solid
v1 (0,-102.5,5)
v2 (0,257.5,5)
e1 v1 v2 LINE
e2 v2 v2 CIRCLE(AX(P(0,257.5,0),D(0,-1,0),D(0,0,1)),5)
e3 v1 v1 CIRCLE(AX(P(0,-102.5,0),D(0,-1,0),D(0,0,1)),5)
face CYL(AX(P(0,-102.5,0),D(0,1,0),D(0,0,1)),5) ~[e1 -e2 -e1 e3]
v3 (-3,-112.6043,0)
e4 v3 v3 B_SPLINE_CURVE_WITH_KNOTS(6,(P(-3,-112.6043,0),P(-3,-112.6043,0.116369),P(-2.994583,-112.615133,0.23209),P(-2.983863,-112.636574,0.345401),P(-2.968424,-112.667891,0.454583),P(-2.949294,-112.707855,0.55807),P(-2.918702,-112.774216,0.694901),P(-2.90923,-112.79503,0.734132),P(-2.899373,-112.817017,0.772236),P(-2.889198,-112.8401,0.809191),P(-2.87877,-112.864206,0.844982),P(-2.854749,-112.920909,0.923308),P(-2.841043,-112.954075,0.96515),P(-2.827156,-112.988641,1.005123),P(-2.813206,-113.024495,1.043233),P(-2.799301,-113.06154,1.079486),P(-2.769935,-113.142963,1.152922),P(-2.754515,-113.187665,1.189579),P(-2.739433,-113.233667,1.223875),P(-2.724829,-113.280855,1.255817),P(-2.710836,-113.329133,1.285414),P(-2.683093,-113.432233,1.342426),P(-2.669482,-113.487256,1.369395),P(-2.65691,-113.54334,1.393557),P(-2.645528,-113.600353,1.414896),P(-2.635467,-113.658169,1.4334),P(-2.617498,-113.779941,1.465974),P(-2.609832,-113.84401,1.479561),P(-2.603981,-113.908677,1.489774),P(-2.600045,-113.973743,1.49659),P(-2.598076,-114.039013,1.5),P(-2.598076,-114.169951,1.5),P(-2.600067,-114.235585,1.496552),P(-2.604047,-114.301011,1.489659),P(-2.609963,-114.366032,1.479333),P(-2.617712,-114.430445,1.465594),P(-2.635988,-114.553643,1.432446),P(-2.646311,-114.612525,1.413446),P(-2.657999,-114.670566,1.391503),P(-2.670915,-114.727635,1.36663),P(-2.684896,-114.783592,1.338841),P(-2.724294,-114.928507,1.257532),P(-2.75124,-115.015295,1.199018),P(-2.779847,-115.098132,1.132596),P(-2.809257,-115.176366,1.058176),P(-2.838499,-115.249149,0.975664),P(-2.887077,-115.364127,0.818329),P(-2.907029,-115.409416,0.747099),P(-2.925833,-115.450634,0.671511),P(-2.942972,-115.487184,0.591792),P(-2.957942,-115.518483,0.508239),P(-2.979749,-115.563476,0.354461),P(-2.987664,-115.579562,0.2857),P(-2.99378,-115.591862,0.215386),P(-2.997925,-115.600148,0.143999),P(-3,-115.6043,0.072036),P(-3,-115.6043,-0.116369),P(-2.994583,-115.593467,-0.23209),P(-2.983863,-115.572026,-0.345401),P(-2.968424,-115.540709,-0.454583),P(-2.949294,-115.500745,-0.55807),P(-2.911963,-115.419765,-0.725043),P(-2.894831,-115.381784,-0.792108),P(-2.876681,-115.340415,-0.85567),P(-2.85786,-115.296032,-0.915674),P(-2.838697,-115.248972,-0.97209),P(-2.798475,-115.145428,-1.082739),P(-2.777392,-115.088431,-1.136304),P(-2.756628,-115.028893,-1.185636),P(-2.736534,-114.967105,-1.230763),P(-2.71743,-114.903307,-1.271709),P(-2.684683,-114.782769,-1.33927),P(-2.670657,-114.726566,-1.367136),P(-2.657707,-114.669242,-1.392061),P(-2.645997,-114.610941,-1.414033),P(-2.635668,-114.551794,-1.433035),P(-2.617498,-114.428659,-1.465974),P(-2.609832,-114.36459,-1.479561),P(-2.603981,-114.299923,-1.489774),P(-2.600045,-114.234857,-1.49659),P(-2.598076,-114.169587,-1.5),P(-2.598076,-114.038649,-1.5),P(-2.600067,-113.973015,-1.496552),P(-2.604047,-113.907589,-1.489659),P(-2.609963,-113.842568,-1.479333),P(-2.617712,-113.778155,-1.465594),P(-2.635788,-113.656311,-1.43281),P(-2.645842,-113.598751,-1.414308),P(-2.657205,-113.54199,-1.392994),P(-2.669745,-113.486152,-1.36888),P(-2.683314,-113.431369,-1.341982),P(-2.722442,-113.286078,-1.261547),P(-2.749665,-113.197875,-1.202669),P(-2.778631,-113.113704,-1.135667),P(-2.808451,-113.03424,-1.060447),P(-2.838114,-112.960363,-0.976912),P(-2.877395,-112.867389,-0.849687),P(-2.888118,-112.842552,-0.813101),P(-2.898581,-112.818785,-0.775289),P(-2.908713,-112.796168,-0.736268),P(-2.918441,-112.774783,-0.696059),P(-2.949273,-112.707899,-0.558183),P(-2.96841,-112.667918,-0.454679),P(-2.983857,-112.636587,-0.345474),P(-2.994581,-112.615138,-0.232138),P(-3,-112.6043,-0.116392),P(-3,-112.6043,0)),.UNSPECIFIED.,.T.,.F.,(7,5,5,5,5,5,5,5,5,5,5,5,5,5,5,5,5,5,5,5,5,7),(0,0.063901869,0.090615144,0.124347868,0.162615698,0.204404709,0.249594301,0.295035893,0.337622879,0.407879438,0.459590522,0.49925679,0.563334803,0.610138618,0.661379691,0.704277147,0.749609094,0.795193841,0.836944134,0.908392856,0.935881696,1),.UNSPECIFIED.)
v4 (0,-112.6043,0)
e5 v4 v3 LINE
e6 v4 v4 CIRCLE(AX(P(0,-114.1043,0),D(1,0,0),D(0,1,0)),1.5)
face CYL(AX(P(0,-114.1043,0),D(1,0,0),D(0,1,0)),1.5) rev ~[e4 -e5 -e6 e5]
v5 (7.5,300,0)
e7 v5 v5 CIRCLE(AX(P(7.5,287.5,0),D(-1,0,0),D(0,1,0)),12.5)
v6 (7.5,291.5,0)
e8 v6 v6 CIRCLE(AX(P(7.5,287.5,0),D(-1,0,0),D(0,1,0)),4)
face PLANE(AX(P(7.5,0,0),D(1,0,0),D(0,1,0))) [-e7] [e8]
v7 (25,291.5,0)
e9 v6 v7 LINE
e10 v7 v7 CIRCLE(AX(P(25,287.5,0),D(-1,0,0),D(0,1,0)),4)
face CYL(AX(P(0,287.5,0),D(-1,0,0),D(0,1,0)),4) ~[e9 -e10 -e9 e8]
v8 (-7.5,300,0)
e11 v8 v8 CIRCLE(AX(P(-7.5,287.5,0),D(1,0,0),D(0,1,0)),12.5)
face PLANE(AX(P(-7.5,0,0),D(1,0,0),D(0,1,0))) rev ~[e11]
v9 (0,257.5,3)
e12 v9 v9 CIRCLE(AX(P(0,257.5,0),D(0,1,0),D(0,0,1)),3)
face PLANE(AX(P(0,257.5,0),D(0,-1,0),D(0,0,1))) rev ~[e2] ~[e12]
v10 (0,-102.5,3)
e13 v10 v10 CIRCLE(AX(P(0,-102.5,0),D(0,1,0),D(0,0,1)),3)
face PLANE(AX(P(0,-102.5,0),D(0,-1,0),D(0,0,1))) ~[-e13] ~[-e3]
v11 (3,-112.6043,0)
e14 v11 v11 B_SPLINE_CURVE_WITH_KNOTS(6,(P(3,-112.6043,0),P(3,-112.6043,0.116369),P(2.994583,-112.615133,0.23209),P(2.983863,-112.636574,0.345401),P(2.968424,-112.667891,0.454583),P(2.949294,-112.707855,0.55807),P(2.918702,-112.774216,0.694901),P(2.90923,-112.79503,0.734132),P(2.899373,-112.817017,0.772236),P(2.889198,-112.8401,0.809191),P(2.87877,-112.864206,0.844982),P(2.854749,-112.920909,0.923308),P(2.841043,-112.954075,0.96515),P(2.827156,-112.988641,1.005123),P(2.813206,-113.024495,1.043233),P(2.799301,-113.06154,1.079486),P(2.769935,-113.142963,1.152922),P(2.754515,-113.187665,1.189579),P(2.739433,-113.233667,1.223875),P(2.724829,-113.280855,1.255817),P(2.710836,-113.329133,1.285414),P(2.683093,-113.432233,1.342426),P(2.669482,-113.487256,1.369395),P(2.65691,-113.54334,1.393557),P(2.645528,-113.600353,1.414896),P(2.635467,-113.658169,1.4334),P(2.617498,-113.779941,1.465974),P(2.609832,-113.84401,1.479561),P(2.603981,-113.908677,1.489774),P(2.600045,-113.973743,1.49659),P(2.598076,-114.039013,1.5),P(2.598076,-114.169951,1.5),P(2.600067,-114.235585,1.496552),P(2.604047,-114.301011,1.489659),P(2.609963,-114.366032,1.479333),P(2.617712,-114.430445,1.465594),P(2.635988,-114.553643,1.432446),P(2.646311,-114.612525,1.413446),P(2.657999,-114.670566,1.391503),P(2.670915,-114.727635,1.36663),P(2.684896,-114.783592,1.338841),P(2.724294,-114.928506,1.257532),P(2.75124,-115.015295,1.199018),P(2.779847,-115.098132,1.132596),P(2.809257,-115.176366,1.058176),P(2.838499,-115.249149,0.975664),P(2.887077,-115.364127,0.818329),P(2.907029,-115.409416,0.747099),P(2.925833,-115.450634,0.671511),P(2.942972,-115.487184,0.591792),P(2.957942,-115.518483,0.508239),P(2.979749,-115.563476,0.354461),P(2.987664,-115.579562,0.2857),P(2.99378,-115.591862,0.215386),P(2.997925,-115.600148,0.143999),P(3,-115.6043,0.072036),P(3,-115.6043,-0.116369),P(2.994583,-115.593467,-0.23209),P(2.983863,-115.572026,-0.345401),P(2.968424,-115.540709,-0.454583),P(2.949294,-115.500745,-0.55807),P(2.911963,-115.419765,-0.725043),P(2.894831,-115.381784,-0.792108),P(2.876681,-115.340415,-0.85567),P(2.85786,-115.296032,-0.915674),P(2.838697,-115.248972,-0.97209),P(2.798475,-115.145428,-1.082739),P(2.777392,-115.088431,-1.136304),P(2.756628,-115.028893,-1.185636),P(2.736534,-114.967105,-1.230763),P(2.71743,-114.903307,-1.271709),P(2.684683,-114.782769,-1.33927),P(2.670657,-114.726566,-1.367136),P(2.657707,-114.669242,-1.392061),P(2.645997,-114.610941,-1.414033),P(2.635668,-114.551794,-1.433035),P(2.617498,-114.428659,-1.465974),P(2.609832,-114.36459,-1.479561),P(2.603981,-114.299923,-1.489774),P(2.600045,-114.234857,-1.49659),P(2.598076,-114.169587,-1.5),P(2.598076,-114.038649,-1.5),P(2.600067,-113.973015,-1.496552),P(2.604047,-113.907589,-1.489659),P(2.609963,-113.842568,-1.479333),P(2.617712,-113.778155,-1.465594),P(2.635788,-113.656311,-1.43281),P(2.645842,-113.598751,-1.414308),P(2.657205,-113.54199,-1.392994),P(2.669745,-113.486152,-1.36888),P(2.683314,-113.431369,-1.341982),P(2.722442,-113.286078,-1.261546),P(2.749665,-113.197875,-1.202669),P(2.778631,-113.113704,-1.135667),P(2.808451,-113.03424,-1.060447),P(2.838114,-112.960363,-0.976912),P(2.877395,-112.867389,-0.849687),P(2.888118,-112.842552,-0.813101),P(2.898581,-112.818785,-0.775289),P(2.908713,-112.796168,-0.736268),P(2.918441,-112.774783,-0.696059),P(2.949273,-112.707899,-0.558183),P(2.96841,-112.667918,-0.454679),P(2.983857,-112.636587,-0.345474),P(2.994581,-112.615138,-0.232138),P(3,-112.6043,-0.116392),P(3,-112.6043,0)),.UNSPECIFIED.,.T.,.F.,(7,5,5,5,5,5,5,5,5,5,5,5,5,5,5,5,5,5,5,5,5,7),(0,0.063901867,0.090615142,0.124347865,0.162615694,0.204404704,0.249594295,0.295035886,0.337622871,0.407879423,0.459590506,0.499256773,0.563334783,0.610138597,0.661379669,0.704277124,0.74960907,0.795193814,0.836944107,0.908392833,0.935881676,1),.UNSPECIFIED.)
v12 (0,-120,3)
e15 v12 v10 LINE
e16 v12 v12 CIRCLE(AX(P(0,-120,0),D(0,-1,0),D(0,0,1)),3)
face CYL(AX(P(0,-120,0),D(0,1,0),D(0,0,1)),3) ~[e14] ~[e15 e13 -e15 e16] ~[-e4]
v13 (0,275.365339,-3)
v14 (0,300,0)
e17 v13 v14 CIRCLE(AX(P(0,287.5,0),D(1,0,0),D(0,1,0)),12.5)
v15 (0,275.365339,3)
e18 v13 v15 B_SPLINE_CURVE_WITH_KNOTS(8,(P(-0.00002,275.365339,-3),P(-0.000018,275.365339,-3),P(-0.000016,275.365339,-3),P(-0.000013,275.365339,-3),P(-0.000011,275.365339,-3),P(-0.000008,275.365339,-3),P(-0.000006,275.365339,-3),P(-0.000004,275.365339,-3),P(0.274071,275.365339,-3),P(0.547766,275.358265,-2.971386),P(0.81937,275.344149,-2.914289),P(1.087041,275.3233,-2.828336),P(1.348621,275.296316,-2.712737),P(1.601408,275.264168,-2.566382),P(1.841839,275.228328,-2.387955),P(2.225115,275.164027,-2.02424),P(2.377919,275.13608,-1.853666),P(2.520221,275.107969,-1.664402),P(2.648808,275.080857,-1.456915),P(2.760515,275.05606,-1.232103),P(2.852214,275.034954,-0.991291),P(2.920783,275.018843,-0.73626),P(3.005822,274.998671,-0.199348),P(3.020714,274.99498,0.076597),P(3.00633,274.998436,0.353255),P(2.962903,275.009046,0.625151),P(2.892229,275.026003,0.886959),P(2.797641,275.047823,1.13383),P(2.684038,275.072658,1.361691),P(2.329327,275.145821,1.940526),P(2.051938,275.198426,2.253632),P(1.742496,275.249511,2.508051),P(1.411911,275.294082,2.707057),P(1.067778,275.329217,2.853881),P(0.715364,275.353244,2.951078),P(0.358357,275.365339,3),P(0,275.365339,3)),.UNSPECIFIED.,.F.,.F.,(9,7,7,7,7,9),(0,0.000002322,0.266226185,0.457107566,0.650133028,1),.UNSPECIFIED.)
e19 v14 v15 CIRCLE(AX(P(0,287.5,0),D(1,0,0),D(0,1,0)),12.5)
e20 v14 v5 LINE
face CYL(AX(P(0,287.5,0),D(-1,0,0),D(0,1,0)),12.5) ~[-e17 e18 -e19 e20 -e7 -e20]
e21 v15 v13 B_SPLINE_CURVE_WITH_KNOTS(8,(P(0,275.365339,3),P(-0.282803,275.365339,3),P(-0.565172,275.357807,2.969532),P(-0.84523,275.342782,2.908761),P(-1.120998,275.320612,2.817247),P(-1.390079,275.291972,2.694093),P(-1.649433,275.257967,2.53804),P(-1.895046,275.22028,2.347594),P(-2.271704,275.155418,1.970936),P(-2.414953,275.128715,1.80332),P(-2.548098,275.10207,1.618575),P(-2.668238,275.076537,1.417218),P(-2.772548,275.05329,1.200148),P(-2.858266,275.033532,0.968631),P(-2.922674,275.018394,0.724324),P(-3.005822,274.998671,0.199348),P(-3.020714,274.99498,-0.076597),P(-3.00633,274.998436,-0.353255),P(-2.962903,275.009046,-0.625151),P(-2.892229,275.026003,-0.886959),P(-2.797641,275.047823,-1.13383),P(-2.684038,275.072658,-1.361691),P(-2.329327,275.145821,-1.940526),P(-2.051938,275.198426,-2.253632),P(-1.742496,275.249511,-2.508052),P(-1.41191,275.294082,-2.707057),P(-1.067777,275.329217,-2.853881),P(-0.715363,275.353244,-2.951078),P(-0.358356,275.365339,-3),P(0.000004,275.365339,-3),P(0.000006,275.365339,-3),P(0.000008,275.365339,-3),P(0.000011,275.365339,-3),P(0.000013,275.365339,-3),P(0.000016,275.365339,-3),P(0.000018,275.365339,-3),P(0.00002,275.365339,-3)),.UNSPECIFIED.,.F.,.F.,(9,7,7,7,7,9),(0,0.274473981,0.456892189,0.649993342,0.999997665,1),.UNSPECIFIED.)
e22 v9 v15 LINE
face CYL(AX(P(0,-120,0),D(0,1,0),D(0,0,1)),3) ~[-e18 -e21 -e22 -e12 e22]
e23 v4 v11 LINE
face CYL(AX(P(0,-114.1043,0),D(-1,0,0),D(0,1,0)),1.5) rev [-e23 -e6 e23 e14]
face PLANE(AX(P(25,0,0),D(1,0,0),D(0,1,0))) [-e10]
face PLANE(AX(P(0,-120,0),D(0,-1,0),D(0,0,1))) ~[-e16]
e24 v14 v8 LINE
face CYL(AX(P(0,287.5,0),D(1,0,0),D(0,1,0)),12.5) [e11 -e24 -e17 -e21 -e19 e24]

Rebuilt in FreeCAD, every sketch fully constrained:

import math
import FreeCAD as App
import Part
import Sketcher
Q = App.Units.Quantity


def add_polygon(sketch, points):
    """Adds a closed chain of lines whose ends are joined by coincident constraints."""
    first, n = sketch.GeometryCount, len(points)
    for a, b in zip(points, points[1:] + points[:1]):
        sketch.addGeometry(Part.LineSegment(App.Vector(*a, 0), App.Vector(*b, 0)), False)
    for i in range(n):
        sketch.addConstraint(Sketcher.Constraint("Coincident", first + i, 2, first + (i + 1) % n, 1))

doc = App.newDocument("Part")
body = doc.addObject("PartDesign::Body", "Body")

sketch1 = body.newObject("Sketcher::SketchObject", "Sketch")
sketch1.AttachmentSupport = (doc.getObject("YZ_Plane"), [""])
sketch1.MapMode = "FlatFace"
sketch1.addGeometry([
    Part.LineSegment(App.Vector(284.9, 3, 0), App.Vector(-120, 3, 0)),
    Part.LineSegment(App.Vector(-120, 3, 0), App.Vector(-120, 0, 0)),
    Part.LineSegment(App.Vector(-120, 0, 0), App.Vector(283.5, 0, 0)),
    Part.ArcOfCircle(Part.Circle(App.Vector(287.5, 0, 0), App.Vector(0, 0, 1), 4), math.radians(131), math.radians(180)),
], False)
sketch1.addConstraint([
    Sketcher.Constraint("Coincident", 0, 2, 1, 1),
    Sketcher.Constraint("Coincident", 1, 2, 2, 1),
    Sketcher.Constraint("Coincident", 2, 2, 3, 2),
    Sketcher.Constraint("Coincident", 3, 1, 0, 1),
    Sketcher.Constraint("Horizontal", 0),
    Sketcher.Constraint("Vertical", 1),
    Sketcher.Constraint("Horizontal", 2),
    Sketcher.Constraint("PointOnObject", 3, 3, -1),
    Sketcher.Constraint("PointOnObject", 1, 2, -1),
    Sketcher.Constraint("Radius", 3, Q("4 mm")),
    Sketcher.Constraint("DistanceY", 1, 2, 1, 1, Q("3 mm")),
    Sketcher.Constraint("DistanceX", 2, 1, 2, 2, Q("403.5 mm")),
    Sketcher.Constraint("DistanceX", 0, 2, -1, 1, Q("120 mm")),
])
revolution = body.newObject("PartDesign::Revolution", "Revolution")
revolution.Profile = sketch1
revolution.ReferenceAxis = (sketch1, ["H_Axis"])
revolution.Angle = 360

sketch2 = body.newObject("Sketcher::SketchObject", "Sketch001")
sketch2.AttachmentSupport = (doc.getObject("YZ_Plane"), [""])
sketch2.MapMode = "FlatFace"
sketch2.addGeometry(Part.Circle(App.Vector(287.5, 0, 0), App.Vector(0, 0, 1), 4), False)
sketch2.addConstraint([
    Sketcher.Constraint("PointOnObject", 0, 3, -1),
    Sketcher.Constraint("Diameter", 0, Q("8 mm")),
    Sketcher.Constraint("DistanceX", -1, 1, 0, 3, Q("287.5 mm")),
])
pad1 = body.newObject("PartDesign::Pad", "Pad")
pad1.Profile = sketch2
pad1.Length = 25

sketch3 = body.newObject("Sketcher::SketchObject", "Sketch002")
sketch3.AttachmentSupport = (doc.getObject("YZ_Plane"), [""])
sketch3.MapMode = "FlatFace"
sketch3.addGeometry(Part.Circle(App.Vector(288, 0, 0), App.Vector(0, 0, 1), 12), False)
sketch3.addConstraint([
    Sketcher.Constraint("PointOnObject", 0, 3, -1),
    Sketcher.Constraint("Diameter", 0, Q("25 mm")),
    Sketcher.Constraint("DistanceX", -1, 1, 0, 3, Q("287.5 mm")),
])
pad2 = body.newObject("PartDesign::Pad", "Pad001")
pad2.Profile = sketch3
pad2.Length = 15
pad2.Midplane = True

sketch4 = body.newObject("Sketcher::SketchObject", "Sketch003")
sketch4.AttachmentSupport = (doc.getObject("YZ_Plane"), [""])
sketch4.MapMode = "FlatFace"
add_polygon(sketch4, [(258, 0), (258, 5), (-102, 5), (-102, 0)])
sketch4.addConstraint([
    Sketcher.Constraint("Vertical", 0),
    Sketcher.Constraint("Horizontal", 1),
    Sketcher.Constraint("Vertical", 2),
    Sketcher.Constraint("Horizontal", 3),
    Sketcher.Constraint("PointOnObject", 2, 2, -1),
    Sketcher.Constraint("DistanceX", 1, 2, 1, 1, Q("360 mm")),
    Sketcher.Constraint("DistanceY", 0, 1, 0, 2, Q("5 mm")),
    Sketcher.Constraint("DistanceX", -1, 1, 0, 2, Q("257.5 mm")),
])
revolution2 = body.newObject("PartDesign::Revolution", "Revolution001")
revolution2.Profile = sketch4
revolution2.ReferenceAxis = (sketch4, ["H_Axis"])
revolution2.Angle = 360

sketch5 = body.newObject("Sketcher::SketchObject", "Sketch004")
sketch5.AttachmentSupport = (doc.getObject("YZ_Plane"), [""])
sketch5.MapMode = "FlatFace"
sketch5.addGeometry(Part.Circle(App.Vector(-114.1, 0, 0), App.Vector(0, 0, 1), 1.5), False)
sketch5.addConstraint([
    Sketcher.Constraint("PointOnObject", 0, 3, -1),
    Sketcher.Constraint("Diameter", 0, Q("3 mm")),
    Sketcher.Constraint("DistanceX", 0, 3, -1, 1, Q("114.1043 mm")),
])
pocket1 = body.newObject("PartDesign::Pocket", "Pocket")
pocket1.Profile = sketch5
pocket1.Length = 15
pocket1.Midplane = True

doc.recompute()
